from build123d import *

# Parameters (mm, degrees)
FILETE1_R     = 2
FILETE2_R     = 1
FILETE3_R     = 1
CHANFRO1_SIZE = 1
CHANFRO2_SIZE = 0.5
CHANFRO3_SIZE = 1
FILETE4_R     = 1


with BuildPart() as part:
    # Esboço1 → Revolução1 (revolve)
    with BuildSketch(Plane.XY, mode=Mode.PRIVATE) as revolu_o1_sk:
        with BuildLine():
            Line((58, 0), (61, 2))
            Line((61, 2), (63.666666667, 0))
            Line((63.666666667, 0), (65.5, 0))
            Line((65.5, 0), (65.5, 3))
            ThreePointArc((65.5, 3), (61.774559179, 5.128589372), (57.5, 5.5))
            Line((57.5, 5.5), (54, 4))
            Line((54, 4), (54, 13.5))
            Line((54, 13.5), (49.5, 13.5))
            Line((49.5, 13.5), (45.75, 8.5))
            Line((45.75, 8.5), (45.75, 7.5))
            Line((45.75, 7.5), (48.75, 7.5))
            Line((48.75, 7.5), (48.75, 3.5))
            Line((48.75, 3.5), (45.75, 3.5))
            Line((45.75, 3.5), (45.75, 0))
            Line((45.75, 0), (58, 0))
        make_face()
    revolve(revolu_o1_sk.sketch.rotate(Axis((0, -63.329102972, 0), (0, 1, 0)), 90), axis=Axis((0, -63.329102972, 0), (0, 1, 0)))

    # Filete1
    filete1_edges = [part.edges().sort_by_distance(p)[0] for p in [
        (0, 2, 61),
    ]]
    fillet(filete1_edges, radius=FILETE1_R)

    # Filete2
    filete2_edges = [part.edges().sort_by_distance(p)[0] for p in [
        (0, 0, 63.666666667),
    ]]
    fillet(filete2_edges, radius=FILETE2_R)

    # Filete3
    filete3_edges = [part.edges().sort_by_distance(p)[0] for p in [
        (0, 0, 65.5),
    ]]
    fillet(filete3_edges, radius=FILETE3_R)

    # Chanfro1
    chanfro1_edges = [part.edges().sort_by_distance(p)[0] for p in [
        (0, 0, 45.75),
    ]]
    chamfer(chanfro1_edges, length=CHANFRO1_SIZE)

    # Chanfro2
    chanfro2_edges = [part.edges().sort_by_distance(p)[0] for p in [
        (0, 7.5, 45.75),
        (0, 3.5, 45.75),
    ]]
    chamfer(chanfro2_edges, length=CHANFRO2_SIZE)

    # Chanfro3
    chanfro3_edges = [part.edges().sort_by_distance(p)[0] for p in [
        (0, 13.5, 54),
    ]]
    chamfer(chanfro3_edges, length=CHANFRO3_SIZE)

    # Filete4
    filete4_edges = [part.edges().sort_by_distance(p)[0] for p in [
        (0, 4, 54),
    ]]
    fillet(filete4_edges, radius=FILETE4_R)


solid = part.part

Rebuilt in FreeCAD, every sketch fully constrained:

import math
import FreeCAD as App
import Part
import Sketcher
from FreeCAD import Vector


def edges_at(feature, points):
    """Names of the edges that pass closest to the given points."""
    edges = feature.Shape.Edges
    near = lambda p: min(range(len(edges)), key=lambda i: edges[i].distToShape(Part.Vertex(*p))[0])
    return sorted({f"Edge{near(p) + 1}" for p in points})

doc = App.newDocument("Part")
params = doc.addObject("Spreadsheet::Sheet", "Params")
for row, (alias, value) in enumerate([
    ("sketch1_radius", "10 mm"),
    ("sketch1_width", "3 mm"),
    ("sketch1_height", "1 mm"),
    ("sketch1_height2", "4 mm"),
    ("sketch1_width2", "4.5 mm"),
    ("revolution_angle", "360 deg"),
    ("fillet_radius", "2 mm"),
    ("fillet2_radius", "1 mm"),
    ("fillet3_radius", "1 mm"),
    ("chamfer_size", "1 mm"),
    ("chamfer2_size", "0.5 mm"),
    ("chamfer3_size", "1 mm"),
    ("fillet4_radius", "1 mm"),
], start=1):
    params.set(f"A{row}", alias)
    params.set(f"B{row}", "=" + value)
    params.setAlias(f"B{row}", alias)

body = doc.addObject("PartDesign::Body", "Body")

# Sketch on XY plane
sketch1 = body.newObject("Sketcher::SketchObject", "Sketch")
sketch1.AttachmentSupport = (doc.getObject("XY_Plane"), [""])
sketch1.MapMode = "FlatFace"
sketch1.addGeometry(Part.LineSegment(Vector(58, 0, 0), Vector(61, 2, 0)), False)
sketch1.addGeometry(Part.LineSegment(Vector(61, 2, 0), Vector(63.666667, 0, 0)), False)
sketch1.addGeometry(Part.LineSegment(Vector(63.666667, 0, 0), Vector(65.5, 0, 0)), False)
sketch1.addGeometry(Part.LineSegment(Vector(65.5, 0, 0), Vector(65.5, 3, 0)), False)
sketch1.addGeometry(Part.ArcOfCircle(Part.Circle(Vector(58.791809, -4.41621, 0), Vector(0, 0, 1), 10), math.radians(47.869687), math.radians(97.422264)), False)
sketch1.addGeometry(Part.LineSegment(Vector(57.5, 5.5, 0), Vector(54, 4, 0)), False)
sketch1.addGeometry(Part.LineSegment(Vector(54, 4, 0), Vector(54, 13.5, 0)), False)
sketch1.addGeometry(Part.LineSegment(Vector(54, 13.5, 0), Vector(49.5, 13.5, 0)), False)
sketch1.addGeometry(Part.LineSegment(Vector(49.5, 13.5, 0), Vector(45.75, 8.5, 0)), False)
sketch1.addGeometry(Part.LineSegment(Vector(45.75, 8.5, 0), Vector(45.75, 7.5, 0)), False)
sketch1.addGeometry(Part.LineSegment(Vector(45.75, 7.5, 0), Vector(48.75, 7.5, 0)), False)
sketch1.addGeometry(Part.LineSegment(Vector(48.75, 7.5, 0), Vector(48.75, 3.5, 0)), False)
sketch1.addGeometry(Part.LineSegment(Vector(48.75, 3.5, 0), Vector(45.75, 3.5, 0)), False)
sketch1.addGeometry(Part.LineSegment(Vector(45.75, 3.5, 0), Vector(45.75, 0, 0)), False)
sketch1.addGeometry(Part.LineSegment(Vector(45.75, 0, 0), Vector(58, 0, 0)), False)
sketch1.addConstraint(Sketcher.Constraint("Coincident", 0, 2, 1, 1))
sketch1.addConstraint(Sketcher.Constraint("Coincident", 1, 2, 2, 1))
sketch1.addConstraint(Sketcher.Constraint("Coincident", 2, 2, 3, 1))
sketch1.addConstraint(Sketcher.Constraint("Coincident", 3, 2, 4, 1))
sketch1.addConstraint(Sketcher.Constraint("Coincident", 4, 2, 5, 1))
sketch1.addConstraint(Sketcher.Constraint("Coincident", 5, 2, 6, 1))
sketch1.addConstraint(Sketcher.Constraint("Coincident", 6, 2, 7, 1))
sketch1.addConstraint(Sketcher.Constraint("Coincident", 7, 2, 8, 1))
sketch1.addConstraint(Sketcher.Constraint("Coincident", 8, 2, 9, 1))
sketch1.addConstraint(Sketcher.Constraint("Coincident", 9, 2, 10, 1))
sketch1.addConstraint(Sketcher.Constraint("Coincident", 10, 2, 11, 1))
sketch1.addConstraint(Sketcher.Constraint("Coincident", 11, 2, 12, 1))
sketch1.addConstraint(Sketcher.Constraint("Coincident", 12, 2, 13, 1))
sketch1.addConstraint(Sketcher.Constraint("Coincident", 13, 2, 14, 1))
sketch1.addConstraint(Sketcher.Constraint("Coincident", 14, 2, 0, 1))
sketch1.addConstraint(Sketcher.Constraint("Horizontal", 2))
sketch1.addConstraint(Sketcher.Constraint("Vertical", 3))
sketch1.addConstraint(Sketcher.Constraint("Vertical", 6))
sketch1.addConstraint(Sketcher.Constraint("Horizontal", 7))
sketch1.addConstraint(Sketcher.Constraint("Vertical", 9))
sketch1.addConstraint(Sketcher.Constraint("Horizontal", 10))
sketch1.addConstraint(Sketcher.Constraint("Vertical", 11))
sketch1.addConstraint(Sketcher.Constraint("Horizontal", 12))
sketch1.addConstraint(Sketcher.Constraint("Vertical", 13))
sketch1.addConstraint(Sketcher.Constraint("Horizontal", 14))
sketch1.addConstraint(Sketcher.Constraint("PointOnObject", 1, 2, -1))
sketch1.addConstraint(Sketcher.Constraint("PointOnObject", 13, 2, -1))
sketch1.addConstraint(Sketcher.Constraint("Perpendicular", 1, 8))
sketch1.addConstraint(Sketcher.Constraint("Vertical", 9, 2, 12, 2))
sketch1.addConstraint(Sketcher.Constraint("Equal", 12, 3))
sketch1.addConstraint(Sketcher.Constraint("Radius", 4, 10.0))
sketch1.addConstraint(Sketcher.Constraint("DistanceX", 10, 1, 10, 2, 3.0))
sketch1.addConstraint(Sketcher.Constraint("DistanceY", 9, 2, 9, 1, 1.0))
sketch1.addConstraint(Sketcher.Constraint("DistanceY", 11, 2, 11, 1, 4.0))
sketch1.addConstraint(Sketcher.Constraint("DistanceX", 7, 2, 7, 1, 4.5))
sketch1.addConstraint(Sketcher.Constraint("DistanceY", 6, 1, 6, 2, 9.5))
sketch1.addConstraint(Sketcher.Constraint("DistanceY", 13, 2, 13, 1, 3.5))
sketch1.addConstraint(Sketcher.Constraint("DistanceX", -1, 1, 0, 2, 61.0))
sketch1.addConstraint(Sketcher.Constraint("DistanceY", -1, 1, 0, 2, 2.0))
sketch1.addConstraint(Sketcher.Constraint("DistanceX", -1, 1, 5, 2, 54.0))
sketch1.addConstraint(Sketcher.Constraint("DistanceY", -1, 1, 5, 2, 4.0))
sketch1.addConstraint(Sketcher.Constraint("DistanceX", -1, 1, 14, 2, 58.0))
sketch1.addConstraint(Sketcher.Constraint("DistanceX", 4, 2, 3, 2, 8.0))
sketch1.addConstraint(Sketcher.Constraint("DistanceY", 4, 2, 6, 2, 8.0))
sketch1.addConstraint(Sketcher.Constraint("DistanceX", 7, 2, 4, 2, 8.0))
sketch1.addConstraint(Sketcher.Constraint("DistanceX", 14, 1, 14, 2, 12.25))
sketch1.setExpression("Constraints[30]", "Params.sketch1_radius")
sketch1.setExpression("Constraints[31]", "Params.sketch1_width")
sketch1.setExpression("Constraints[32]", "Params.sketch1_height")
sketch1.setExpression("Constraints[33]", "Params.sketch1_height2")
sketch1.setExpression("Constraints[34]", "Params.sketch1_width2")
revolution = body.newObject("PartDesign::Revolution", "Revolution")
revolution.Profile = sketch1
revolution.ReferenceAxis = (sketch1, ["V_Axis"])
revolution.setExpression("Angle", "Params.revolution_angle")
doc.recompute()

fillet = body.newObject("PartDesign::Fillet", "Fillet")
fillet.Base = (revolution, edges_at(revolution, [(0, 2, 61)]))
fillet.setExpression("Radius", "Params.fillet_radius")
doc.recompute()

fillet2 = body.newObject("PartDesign::Fillet", "Fillet001")
fillet2.Base = (fillet, edges_at(fillet, [(0, 0, 63.667)]))
fillet2.setExpression("Radius", "Params.fillet2_radius")
doc.recompute()

fillet3 = body.newObject("PartDesign::Fillet", "Fillet002")
fillet3.Base = (fillet2, edges_at(fillet2, [(0, 0, 65.5)]))
fillet3.setExpression("Radius", "Params.fillet3_radius")
doc.recompute()

chamfer = body.newObject("PartDesign::Chamfer", "Chamfer")
chamfer.Base = (fillet3, edges_at(fillet3, [(0, 0, 45.75)]))
chamfer.setExpression("Size", "Params.chamfer_size")
doc.recompute()

chamfer2 = body.newObject("PartDesign::Chamfer", "Chamfer001")
chamfer2.Base = (chamfer, edges_at(chamfer, [(0, 7.5, 45.75), (0, 3.5, 45.75)]))
chamfer2.setExpression("Size", "Params.chamfer2_size")
doc.recompute()

chamfer3 = body.newObject("PartDesign::Chamfer", "Chamfer002")
chamfer3.Base = (chamfer2, edges_at(chamfer2, [(0, 13.5, 54)]))
chamfer3.setExpression("Size", "Params.chamfer3_size")
doc.recompute()

fillet4 = body.newObject("PartDesign::Fillet", "Fillet003")
fillet4.Base = (chamfer3, edges_at(chamfer3, [(0, 4, 54)]))
fillet4.setExpression("Radius", "Params.fillet4_radius")

doc.recompute()
